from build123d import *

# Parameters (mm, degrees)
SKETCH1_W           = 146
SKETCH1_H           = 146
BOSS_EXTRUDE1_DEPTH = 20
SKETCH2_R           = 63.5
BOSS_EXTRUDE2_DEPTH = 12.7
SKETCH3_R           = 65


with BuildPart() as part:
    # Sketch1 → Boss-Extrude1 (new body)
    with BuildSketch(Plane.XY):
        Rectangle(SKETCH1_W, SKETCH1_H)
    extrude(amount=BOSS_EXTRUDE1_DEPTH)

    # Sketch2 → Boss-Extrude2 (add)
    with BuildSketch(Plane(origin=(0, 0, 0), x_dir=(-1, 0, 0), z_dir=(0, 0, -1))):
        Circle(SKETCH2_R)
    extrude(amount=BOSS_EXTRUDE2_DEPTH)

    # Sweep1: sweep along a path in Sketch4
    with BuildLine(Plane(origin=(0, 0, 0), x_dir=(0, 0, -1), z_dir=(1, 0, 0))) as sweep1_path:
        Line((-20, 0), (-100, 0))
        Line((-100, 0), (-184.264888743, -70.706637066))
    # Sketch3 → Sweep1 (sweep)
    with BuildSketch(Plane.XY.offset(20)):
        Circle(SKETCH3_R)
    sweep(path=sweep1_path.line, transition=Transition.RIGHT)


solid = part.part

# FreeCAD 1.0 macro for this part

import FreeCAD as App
import Part
import Sketcher

V = App.Vector
Q = App.Units.Quantity


def add_polygon(sketch, points):
    """Adds a closed chain of lines whose ends are joined by coincident constraints."""
    first, n = sketch.GeometryCount, len(points)
    for a, b in zip(points, points[1:] + points[:1]):
        sketch.addGeometry(Part.LineSegment(App.Vector(*a, 0), App.Vector(*b, 0)), False)
    for i in range(n):
        sketch.addConstraint(Sketcher.Constraint("Coincident", first + i, 2, first + (i + 1) % n, 1))

doc = App.newDocument("Part")
body = doc.addObject("PartDesign::Body", "Body")

# Sketch on XY plane
sketch1 = body.newObject("Sketcher::SketchObject", "Sketch")
sketch1.AttachmentSupport = (doc.getObject("XY_Plane"), [""])
sketch1.MapMode = "FlatFace"
add_polygon(sketch1, [(-73, 73), (-73, -73), (73, -73), (73, 73)])  # lines 0-3
sketch1.addConstraint([
    Sketcher.Constraint("Vertical", 0),
    Sketcher.Constraint("Horizontal", 1),
    Sketcher.Constraint("Vertical", 2),
    Sketcher.Constraint("Horizontal", 3),
    Sketcher.Constraint("Symmetric", 0, 2, 2, 2, -1, 1),
    Sketcher.Constraint("Equal", 3, 0),
    Sketcher.Constraint("DistanceX", 1, 1, 1, 2, Q("146 mm")),
])
pad1 = body.newObject("PartDesign::Pad", "Pad")
pad1.Profile = sketch1
pad1.Length = 20

# Sketch on XY plane
sketch2 = body.newObject("Sketcher::SketchObject", "Sketch001")
sketch2.AttachmentSupport = (doc.getObject("XY_Plane"), [""])
sketch2.MapMode = "FlatFace"
sketch2.addGeometry(Part.Circle(V(0, 0, 0), V(0, 0, 1), 64), False)
sketch2.addConstraint([
    Sketcher.Constraint("Coincident", 0, 3, -1, 1),
    Sketcher.Constraint("Diameter", 0, Q("127 mm")),
])
pad2 = body.newObject("PartDesign::Pad", "Pad001")
pad2.Profile = sketch2
pad2.Length = 12.7
pad2.Reversed = True

# Sketch on XY plane
sketch3 = body.newObject("Sketcher::SketchObject", "Sketch002")
sketch3.AttachmentSupport = (doc.getObject("XY_Plane"), [""])
sketch3.MapMode = "FlatFace"
sketch3.AttachmentOffset = App.Placement(V(0, 0, 20), App.Rotation())
sketch3.addGeometry(Part.Circle(V(0, 0, 0), V(0, 0, 1), 65), False)
sketch3.addConstraint([
    Sketcher.Constraint("Coincident", 0, 3, -1, 1),
    Sketcher.Constraint("Diameter", 0, Q("130 mm")),
])

# Sketch on YZ plane
sketch4 = body.newObject("Sketcher::SketchObject", "Sketch003")
sketch4.AttachmentSupport = (doc.getObject("YZ_Plane"), [""])
sketch4.MapMode = "FlatFace"
sketch4.addGeometry([
    Part.LineSegment(V(0, 20, 0), V(0, 100, 0)),
    Part.LineSegment(V(0, 100, 0), V(-71, 184, 0)),
], False)
sketch4.addConstraint([
    Sketcher.Constraint("Coincident", 0, 2, 1, 1),
    Sketcher.Constraint("Vertical", 0),
    Sketcher.Constraint("PointOnObject", 0, 1, -2),
    Sketcher.Constraint("DistanceY", 0, 1, 0, 2, Q("80 mm")),
    Sketcher.Constraint("Angle", 1, Q("130 deg")),
    Sketcher.Constraint("Distance", 1, Q("110 mm")),
    Sketcher.Constraint("DistanceY", -1, 1, 0, 1, Q("20 mm")),
])
doc.recompute()

additivepipe = body.newObject("PartDesign::AdditivePipe", "AdditivePipe")
additivepipe.Profile = sketch3
additivepipe.Spine = (sketch4, ["Edge1", "Edge2"])
additivepipe.Transition = "Right corner"

doc.recompute()
